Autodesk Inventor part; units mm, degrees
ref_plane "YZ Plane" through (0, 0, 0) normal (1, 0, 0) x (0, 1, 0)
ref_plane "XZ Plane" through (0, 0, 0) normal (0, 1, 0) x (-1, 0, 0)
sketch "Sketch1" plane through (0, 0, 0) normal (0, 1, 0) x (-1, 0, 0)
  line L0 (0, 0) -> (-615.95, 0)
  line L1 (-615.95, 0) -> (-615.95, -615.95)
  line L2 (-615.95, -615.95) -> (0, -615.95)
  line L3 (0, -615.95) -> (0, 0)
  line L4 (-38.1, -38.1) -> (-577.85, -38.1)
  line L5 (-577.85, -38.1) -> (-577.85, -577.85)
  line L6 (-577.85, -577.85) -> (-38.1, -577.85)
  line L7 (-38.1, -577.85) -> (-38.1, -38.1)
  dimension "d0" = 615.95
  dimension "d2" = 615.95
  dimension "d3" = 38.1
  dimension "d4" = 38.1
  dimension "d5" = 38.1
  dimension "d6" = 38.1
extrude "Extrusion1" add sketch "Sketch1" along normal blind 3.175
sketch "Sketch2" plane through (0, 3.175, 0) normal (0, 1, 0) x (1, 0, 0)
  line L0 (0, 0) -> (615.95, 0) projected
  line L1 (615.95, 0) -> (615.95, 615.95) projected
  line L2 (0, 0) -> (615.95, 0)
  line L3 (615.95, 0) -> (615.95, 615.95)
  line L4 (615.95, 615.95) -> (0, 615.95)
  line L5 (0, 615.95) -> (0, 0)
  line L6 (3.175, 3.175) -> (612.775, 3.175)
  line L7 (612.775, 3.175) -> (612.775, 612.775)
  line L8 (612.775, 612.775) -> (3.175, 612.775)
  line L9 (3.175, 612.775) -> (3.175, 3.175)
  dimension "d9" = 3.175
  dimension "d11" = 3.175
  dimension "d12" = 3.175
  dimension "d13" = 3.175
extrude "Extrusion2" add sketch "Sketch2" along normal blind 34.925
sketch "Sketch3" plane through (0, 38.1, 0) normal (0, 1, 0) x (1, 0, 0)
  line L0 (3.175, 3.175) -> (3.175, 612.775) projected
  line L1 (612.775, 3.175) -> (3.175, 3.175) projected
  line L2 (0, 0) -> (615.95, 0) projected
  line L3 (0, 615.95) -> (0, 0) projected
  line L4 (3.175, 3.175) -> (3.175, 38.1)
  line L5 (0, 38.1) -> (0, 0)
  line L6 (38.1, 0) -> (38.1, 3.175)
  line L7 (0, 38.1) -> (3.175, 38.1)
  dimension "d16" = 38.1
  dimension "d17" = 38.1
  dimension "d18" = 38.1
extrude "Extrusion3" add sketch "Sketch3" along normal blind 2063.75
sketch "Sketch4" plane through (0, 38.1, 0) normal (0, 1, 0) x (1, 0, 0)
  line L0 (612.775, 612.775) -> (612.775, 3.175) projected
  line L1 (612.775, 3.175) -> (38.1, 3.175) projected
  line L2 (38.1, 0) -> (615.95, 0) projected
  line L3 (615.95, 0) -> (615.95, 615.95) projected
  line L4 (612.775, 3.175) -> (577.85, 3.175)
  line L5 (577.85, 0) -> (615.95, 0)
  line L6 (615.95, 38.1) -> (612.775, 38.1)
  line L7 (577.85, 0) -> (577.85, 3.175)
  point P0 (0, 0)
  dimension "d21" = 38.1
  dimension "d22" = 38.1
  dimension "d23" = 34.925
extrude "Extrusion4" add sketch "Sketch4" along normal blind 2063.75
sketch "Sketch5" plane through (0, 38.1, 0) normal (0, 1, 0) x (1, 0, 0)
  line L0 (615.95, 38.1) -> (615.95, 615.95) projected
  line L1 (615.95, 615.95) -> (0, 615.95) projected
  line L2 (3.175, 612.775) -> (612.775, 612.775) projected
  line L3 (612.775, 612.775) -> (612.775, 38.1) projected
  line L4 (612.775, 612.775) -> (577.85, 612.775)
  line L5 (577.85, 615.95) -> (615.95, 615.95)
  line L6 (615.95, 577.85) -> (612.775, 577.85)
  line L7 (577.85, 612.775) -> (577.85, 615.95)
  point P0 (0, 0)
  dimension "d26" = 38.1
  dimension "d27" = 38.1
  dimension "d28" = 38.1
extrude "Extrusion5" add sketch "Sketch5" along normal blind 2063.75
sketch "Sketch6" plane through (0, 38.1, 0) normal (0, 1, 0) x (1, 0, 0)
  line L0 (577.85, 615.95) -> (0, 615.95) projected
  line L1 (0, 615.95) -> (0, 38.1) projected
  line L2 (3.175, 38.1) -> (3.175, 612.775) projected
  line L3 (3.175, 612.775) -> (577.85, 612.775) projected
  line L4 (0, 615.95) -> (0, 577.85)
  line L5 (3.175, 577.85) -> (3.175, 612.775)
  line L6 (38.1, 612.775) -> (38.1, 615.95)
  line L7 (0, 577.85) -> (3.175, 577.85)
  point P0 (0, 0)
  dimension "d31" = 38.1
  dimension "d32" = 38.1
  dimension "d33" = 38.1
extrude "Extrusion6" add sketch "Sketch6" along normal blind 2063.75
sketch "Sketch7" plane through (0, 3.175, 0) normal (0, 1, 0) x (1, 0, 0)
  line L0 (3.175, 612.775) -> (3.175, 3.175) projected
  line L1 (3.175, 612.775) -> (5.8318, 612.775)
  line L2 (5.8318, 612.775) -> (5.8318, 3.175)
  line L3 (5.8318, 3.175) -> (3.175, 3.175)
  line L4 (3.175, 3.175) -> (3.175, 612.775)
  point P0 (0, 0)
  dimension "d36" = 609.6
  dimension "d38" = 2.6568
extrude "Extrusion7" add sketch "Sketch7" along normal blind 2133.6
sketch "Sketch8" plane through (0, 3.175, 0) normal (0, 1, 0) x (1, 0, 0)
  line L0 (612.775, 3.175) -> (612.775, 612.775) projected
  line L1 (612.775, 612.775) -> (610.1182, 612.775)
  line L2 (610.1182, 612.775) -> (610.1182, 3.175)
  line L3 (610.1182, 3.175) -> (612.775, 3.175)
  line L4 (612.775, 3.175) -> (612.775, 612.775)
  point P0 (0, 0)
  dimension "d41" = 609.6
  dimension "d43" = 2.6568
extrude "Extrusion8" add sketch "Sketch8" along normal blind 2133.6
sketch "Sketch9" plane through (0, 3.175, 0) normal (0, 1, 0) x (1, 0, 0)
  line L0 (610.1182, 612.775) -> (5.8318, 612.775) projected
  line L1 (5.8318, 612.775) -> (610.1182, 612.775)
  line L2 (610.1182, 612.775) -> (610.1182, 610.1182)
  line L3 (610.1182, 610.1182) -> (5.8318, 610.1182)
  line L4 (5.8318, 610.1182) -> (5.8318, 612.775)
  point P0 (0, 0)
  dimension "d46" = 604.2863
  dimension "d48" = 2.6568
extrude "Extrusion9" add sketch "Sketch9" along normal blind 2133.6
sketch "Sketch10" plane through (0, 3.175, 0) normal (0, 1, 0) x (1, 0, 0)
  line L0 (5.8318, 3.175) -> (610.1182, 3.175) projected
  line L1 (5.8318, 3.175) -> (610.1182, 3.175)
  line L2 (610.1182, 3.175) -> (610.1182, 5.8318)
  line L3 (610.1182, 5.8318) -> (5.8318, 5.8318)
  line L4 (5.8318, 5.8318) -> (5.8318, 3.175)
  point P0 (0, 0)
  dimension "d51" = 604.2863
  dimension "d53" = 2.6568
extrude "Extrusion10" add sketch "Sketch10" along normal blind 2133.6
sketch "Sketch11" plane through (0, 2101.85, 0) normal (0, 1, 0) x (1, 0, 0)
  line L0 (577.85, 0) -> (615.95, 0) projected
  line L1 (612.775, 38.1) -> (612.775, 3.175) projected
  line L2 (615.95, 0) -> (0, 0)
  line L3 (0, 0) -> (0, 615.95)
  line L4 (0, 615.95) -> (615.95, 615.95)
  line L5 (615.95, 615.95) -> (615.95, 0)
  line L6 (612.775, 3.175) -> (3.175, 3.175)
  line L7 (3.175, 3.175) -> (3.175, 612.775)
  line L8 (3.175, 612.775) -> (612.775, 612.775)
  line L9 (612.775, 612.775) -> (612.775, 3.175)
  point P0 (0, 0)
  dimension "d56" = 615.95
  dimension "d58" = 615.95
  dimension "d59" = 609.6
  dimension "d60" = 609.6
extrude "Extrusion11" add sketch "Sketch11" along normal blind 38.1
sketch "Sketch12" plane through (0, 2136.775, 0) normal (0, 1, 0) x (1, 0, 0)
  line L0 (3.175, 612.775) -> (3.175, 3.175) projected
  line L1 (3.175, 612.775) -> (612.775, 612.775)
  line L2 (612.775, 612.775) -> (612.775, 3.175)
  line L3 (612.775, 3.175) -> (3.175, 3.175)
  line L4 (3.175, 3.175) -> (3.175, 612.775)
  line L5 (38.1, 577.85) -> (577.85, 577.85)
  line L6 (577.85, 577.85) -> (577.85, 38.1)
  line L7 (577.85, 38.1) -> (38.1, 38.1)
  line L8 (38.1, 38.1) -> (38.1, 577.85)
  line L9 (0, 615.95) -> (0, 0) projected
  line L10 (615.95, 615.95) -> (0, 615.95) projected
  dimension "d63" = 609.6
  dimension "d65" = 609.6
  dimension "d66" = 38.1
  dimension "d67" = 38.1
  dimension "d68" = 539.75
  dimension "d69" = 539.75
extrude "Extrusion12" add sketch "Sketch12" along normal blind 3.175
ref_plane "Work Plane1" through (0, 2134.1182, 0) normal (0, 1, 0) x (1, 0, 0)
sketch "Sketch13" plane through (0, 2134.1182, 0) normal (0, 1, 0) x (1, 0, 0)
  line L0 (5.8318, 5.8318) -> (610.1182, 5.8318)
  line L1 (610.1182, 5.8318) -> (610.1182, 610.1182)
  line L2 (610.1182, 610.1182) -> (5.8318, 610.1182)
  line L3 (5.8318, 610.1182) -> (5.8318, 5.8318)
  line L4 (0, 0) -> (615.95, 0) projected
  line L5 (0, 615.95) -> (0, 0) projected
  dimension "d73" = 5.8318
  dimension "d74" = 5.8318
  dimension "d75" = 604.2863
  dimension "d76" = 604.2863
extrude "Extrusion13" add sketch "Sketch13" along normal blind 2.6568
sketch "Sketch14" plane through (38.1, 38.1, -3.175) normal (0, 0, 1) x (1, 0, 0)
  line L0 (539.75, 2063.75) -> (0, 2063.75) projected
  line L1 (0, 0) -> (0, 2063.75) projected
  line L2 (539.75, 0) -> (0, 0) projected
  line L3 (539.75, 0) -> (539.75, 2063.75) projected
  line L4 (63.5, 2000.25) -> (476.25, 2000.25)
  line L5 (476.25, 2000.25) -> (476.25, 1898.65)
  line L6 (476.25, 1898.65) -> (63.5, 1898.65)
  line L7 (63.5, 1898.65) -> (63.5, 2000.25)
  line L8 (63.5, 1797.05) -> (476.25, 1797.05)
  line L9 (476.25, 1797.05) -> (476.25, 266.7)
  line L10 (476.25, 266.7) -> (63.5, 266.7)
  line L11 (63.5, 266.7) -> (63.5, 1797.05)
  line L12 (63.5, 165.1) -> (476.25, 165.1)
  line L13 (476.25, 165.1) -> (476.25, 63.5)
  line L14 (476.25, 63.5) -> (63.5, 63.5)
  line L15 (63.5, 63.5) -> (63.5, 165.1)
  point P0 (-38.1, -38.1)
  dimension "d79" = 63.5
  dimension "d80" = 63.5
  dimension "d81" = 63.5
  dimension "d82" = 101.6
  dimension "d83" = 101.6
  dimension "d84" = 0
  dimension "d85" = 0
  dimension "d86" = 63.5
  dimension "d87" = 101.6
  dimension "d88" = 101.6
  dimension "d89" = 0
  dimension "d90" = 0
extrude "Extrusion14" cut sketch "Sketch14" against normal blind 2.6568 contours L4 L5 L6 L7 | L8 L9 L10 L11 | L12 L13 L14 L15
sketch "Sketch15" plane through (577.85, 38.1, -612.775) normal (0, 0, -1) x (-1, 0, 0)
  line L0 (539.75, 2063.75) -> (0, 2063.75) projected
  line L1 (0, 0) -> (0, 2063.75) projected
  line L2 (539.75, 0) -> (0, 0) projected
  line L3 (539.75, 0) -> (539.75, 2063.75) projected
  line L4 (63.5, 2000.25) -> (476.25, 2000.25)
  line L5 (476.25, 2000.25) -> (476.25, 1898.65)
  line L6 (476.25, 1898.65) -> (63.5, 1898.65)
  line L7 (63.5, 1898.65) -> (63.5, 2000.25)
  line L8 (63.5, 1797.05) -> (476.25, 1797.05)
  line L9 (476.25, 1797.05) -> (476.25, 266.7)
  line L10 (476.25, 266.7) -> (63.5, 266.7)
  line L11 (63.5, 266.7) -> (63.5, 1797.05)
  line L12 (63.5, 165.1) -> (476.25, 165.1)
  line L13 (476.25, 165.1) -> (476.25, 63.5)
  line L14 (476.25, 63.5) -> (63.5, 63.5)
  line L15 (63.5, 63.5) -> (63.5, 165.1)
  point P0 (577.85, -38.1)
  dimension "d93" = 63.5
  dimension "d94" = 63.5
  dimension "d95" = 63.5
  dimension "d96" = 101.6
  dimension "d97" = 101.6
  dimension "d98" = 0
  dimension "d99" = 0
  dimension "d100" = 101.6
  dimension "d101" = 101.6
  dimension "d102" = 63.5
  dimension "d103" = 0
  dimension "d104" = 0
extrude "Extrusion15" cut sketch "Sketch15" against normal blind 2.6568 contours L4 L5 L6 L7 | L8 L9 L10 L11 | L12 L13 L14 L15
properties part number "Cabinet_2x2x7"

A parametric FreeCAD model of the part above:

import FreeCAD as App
import Part
import Sketcher

V = App.Vector
Q = App.Units.Quantity


def add_polygon(sketch, points):
    """Adds a closed chain of lines whose ends are joined by coincident constraints."""
    first, n = sketch.GeometryCount, len(points)
    for a, b in zip(points, points[1:] + points[:1]):
        sketch.addGeometry(Part.LineSegment(App.Vector(*a, 0), App.Vector(*b, 0)), False)
    for i in range(n):
        sketch.addConstraint(Sketcher.Constraint("Coincident", first + i, 2, first + (i + 1) % n, 1))

doc = App.newDocument("Part")
body = doc.addObject("PartDesign::Body", "Body")

sketch1 = body.newObject("Sketcher::SketchObject", "Sketch")
sketch1.AttachmentSupport = (doc.getObject("XZ_Plane"), [""])
sketch1.MapMode = "FlatFace"
add_polygon(sketch1, [(0, -616), (0, 0), (616, 0), (616, -616)])
add_polygon(sketch1, [(578, -38), (38, -38), (38, -578), (578, -578)])
sketch1.addConstraint(Sketcher.Constraint("Vertical", 0))
sketch1.addConstraint(Sketcher.Constraint("Horizontal", 1))
sketch1.addConstraint(Sketcher.Constraint("Vertical", 2))
sketch1.addConstraint(Sketcher.Constraint("Horizontal", 3))
sketch1.addConstraint(Sketcher.Constraint("Horizontal", 4))
sketch1.addConstraint(Sketcher.Constraint("Vertical", 5))
sketch1.addConstraint(Sketcher.Constraint("Horizontal", 6))
sketch1.addConstraint(Sketcher.Constraint("Vertical", 7))
sketch1.addConstraint(Sketcher.Constraint("Coincident", 0, 2, -1, 1))
sketch1.addConstraint(Sketcher.Constraint("Equal", 3, 0))
sketch1.addConstraint(Sketcher.Constraint("Equal", 6, 5))
sketch1.addConstraint(Sketcher.Constraint("DistanceX", 1, 1, 1, 2, Q("24.25 in")))
sketch1.addConstraint(Sketcher.Constraint("DistanceX", -1, 1, 4, 2, Q("1.5 in")))
sketch1.addConstraint(Sketcher.Constraint("DistanceY", 4, 2, -1, 1, Q("1.5 in")))
sketch1.addConstraint(Sketcher.Constraint("DistanceY", 3, 2, 5, 2, Q("1.5 in")))
pad1 = body.newObject("PartDesign::Pad", "Pad")
pad1.Profile = sketch1
pad1.Length = Q("0.125 in")
pad1.Reversed = True

sketch2 = body.newObject("Sketcher::SketchObject", "Sketch001")
sketch2.AttachmentSupport = (doc.getObject("XZ_Plane"), [""])
sketch2.MapMode = "FlatFace"
sketch2.AttachmentOffset = App.Placement(V(0, 0, -0.125 * 25.4), App.Rotation())
add_polygon(sketch2, [(0, -616), (0, 0), (616, 0), (616, -616)])
add_polygon(sketch2, [(613, -3), (3, -3), (3, -613), (613, -613)])
sketch2.addConstraint(Sketcher.Constraint("Vertical", 0))
sketch2.addConstraint(Sketcher.Constraint("Horizontal", 1))
sketch2.addConstraint(Sketcher.Constraint("Vertical", 2))
sketch2.addConstraint(Sketcher.Constraint("Horizontal", 3))
sketch2.addConstraint(Sketcher.Constraint("Horizontal", 4))
sketch2.addConstraint(Sketcher.Constraint("Vertical", 5))
sketch2.addConstraint(Sketcher.Constraint("Horizontal", 6))
sketch2.addConstraint(Sketcher.Constraint("Vertical", 7))
sketch2.addConstraint(Sketcher.Constraint("Coincident", 0, 2, -1, 1))
sketch2.addConstraint(Sketcher.Constraint("Equal", 3, 0))
sketch2.addConstraint(Sketcher.Constraint("Equal", 6, 5))
sketch2.addConstraint(Sketcher.Constraint("DistanceX", 4, 2, 4, 1, Q("24 in")))
sketch2.addConstraint(Sketcher.Constraint("DistanceX", -1, 1, 4, 2, Q("0.125 in")))
sketch2.addConstraint(Sketcher.Constraint("DistanceY", 4, 2, -1, 1, Q("0.125 in")))
sketch2.addConstraint(Sketcher.Constraint("DistanceY", 3, 2, 5, 2, Q("0.125 in")))
pad2 = body.newObject("PartDesign::Pad", "Pad001")
pad2.Profile = sketch2
pad2.Length = Q("1.375 in")
pad2.Reversed = True

sketch3 = body.newObject("Sketcher::SketchObject", "Sketch002")
sketch3.AttachmentSupport = (doc.getObject("XZ_Plane"), [""])
sketch3.MapMode = "FlatFace"
sketch3.AttachmentOffset = App.Placement(V(0, 0, -1.5 * 25.4), App.Rotation())
add_polygon(sketch3, [(38.1, -3.2), (3.2, -3.2), (3.2, -38.1), (0, -38.1), (0, 0), (38.1, 0)])
sketch3.addConstraint(Sketcher.Constraint("Horizontal", 0))
sketch3.addConstraint(Sketcher.Constraint("Vertical", 1))
sketch3.addConstraint(Sketcher.Constraint("Horizontal", 2))
sketch3.addConstraint(Sketcher.Constraint("Vertical", 3))
sketch3.addConstraint(Sketcher.Constraint("Horizontal", 4))
sketch3.addConstraint(Sketcher.Constraint("Vertical", 5))
sketch3.addConstraint(Sketcher.Constraint("Coincident", 3, 2, -1, 1))
sketch3.addConstraint(Sketcher.Constraint("Equal", 0, 1))
sketch3.addConstraint(Sketcher.Constraint("Equal", 4, 3))
sketch3.addConstraint(Sketcher.Constraint("DistanceX", 4, 1, 4, 2, Q("1.5 in")))
sketch3.addConstraint(Sketcher.Constraint("DistanceX", 0, 2, 0, 1, Q("1.375 in")))
pad3 = body.newObject("PartDesign::Pad", "Pad002")
pad3.Profile = sketch3
pad3.Length = Q("81.25 in")
pad3.Reversed = True

sketch4 = body.newObject("Sketcher::SketchObject", "Sketch003")
sketch4.AttachmentSupport = (doc.getObject("XZ_Plane"), [""])
sketch4.MapMode = "FlatFace"
sketch4.AttachmentOffset = App.Placement(V(0, 0, -1.5 * 25.4), App.Rotation())
add_polygon(sketch4, [(616, -38.1), (612.8, -38.1), (612.8, -3.2), (577.9, -3.2), (577.9, 0), (616, 0)])
sketch4.addConstraint(Sketcher.Constraint("Horizontal", 0))
sketch4.addConstraint(Sketcher.Constraint("Vertical", 1))
sketch4.addConstraint(Sketcher.Constraint("Horizontal", 2))
sketch4.addConstraint(Sketcher.Constraint("Vertical", 3))
sketch4.addConstraint(Sketcher.Constraint("Horizontal", 4))
sketch4.addConstraint(Sketcher.Constraint("Vertical", 5))
sketch4.addConstraint(Sketcher.Constraint("PointOnObject", 3, 2, -1))
sketch4.addConstraint(Sketcher.Constraint("Equal", 2, 1))
sketch4.addConstraint(Sketcher.Constraint("Equal", 0, 3))
sketch4.addConstraint(Sketcher.Constraint("DistanceX", 4, 1, 4, 2, Q("1.5 in")))
sketch4.addConstraint(Sketcher.Constraint("DistanceX", 2, 2, 2, 1, Q("1.375 in")))
sketch4.addConstraint(Sketcher.Constraint("DistanceX", -1, 1, 2, 2, Q("22.75 in")))
pad4 = body.newObject("PartDesign::Pad", "Pad003")
pad4.Profile = sketch4
pad4.Length = Q("81.25 in")
pad4.Reversed = True

sketch5 = body.newObject("Sketcher::SketchObject", "Sketch004")
sketch5.AttachmentSupport = (doc.getObject("XZ_Plane"), [""])
sketch5.MapMode = "FlatFace"
sketch5.AttachmentOffset = App.Placement(V(0, 0, -1.5 * 25.4), App.Rotation())
add_polygon(sketch5, [(612.8, -577.9), (616, -577.9), (616, -616), (577.9, -616), (577.9, -612.8), (612.8, -612.8)])
sketch5.addConstraint(Sketcher.Constraint("Horizontal", 0))
sketch5.addConstraint(Sketcher.Constraint("Vertical", 1))
sketch5.addConstraint(Sketcher.Constraint("Horizontal", 2))
sketch5.addConstraint(Sketcher.Constraint("Vertical", 3))
sketch5.addConstraint(Sketcher.Constraint("Horizontal", 4))
sketch5.addConstraint(Sketcher.Constraint("Vertical", 5))
sketch5.addConstraint(Sketcher.Constraint("Equal", 2, 1))
sketch5.addConstraint(Sketcher.Constraint("Equal", 0, 3))
sketch5.addConstraint(Sketcher.Constraint("DistanceX", 2, 2, 2, 1, Q("1.5 in")))
sketch5.addConstraint(Sketcher.Constraint("DistanceX", 0, 1, 0, 2, Q("0.125 in")))
sketch5.addConstraint(Sketcher.Constraint("DistanceX", -1, 1, 0, 2, Q("24.25 in")))
sketch5.addConstraint(Sketcher.Constraint("DistanceY", 0, 2, -1, 1, Q("22.75 in")))
pad5 = body.newObject("PartDesign::Pad", "Pad004")
pad5.Profile = sketch5
pad5.Length = Q("81.25 in")
pad5.Reversed = True

sketch6 = body.newObject("Sketcher::SketchObject", "Sketch005")
sketch6.AttachmentSupport = (doc.getObject("XZ_Plane"), [""])
sketch6.MapMode = "FlatFace"
sketch6.AttachmentOffset = App.Placement(V(0, 0, -1.5 * 25.4), App.Rotation())
add_polygon(sketch6, [(38.1, -612.8), (38.1, -616), (0, -616), (0, -577.9), (3.2, -577.9), (3.2, -612.8)])
sketch6.addConstraint(Sketcher.Constraint("Vertical", 0))
sketch6.addConstraint(Sketcher.Constraint("Horizontal", 1))
sketch6.addConstraint(Sketcher.Constraint("Vertical", 2))
sketch6.addConstraint(Sketcher.Constraint("Horizontal", 3))
sketch6.addConstraint(Sketcher.Constraint("Vertical", 4))
sketch6.addConstraint(Sketcher.Constraint("Horizontal", 5))
sketch6.addConstraint(Sketcher.Constraint("PointOnObject", 1, 2, -2))
sketch6.addConstraint(Sketcher.Constraint("Equal", 3, 0))
sketch6.addConstraint(Sketcher.Constraint("Equal", 1, 2))
sketch6.addConstraint(Sketcher.Constraint("DistanceX", 1, 2, 1, 1, Q("1.5 in")))
sketch6.addConstraint(Sketcher.Constraint("DistanceX", 3, 1, 3, 2, Q("0.125 in")))
sketch6.addConstraint(Sketcher.Constraint("DistanceY", 0, 2, -1, 1, Q("24.25 in")))
pad6 = body.newObject("PartDesign::Pad", "Pad005")
pad6.Profile = sketch6
pad6.Length = Q("81.25 in")
pad6.Reversed = True

sketch7 = body.newObject("Sketcher::SketchObject", "Sketch006")
sketch7.AttachmentSupport = (doc.getObject("XZ_Plane"), [""])
sketch7.MapMode = "FlatFace"
sketch7.AttachmentOffset = App.Placement(V(0, 0, -0.125 * 25.4), App.Rotation())
add_polygon(sketch7, [(5.8, -612.8), (3.2, -612.8), (3.2, -3.2), (5.8, -3.2)])
sketch7.addConstraint(Sketcher.Constraint("Horizontal", 0))
sketch7.addConstraint(Sketcher.Constraint("Vertical", 1))
sketch7.addConstraint(Sketcher.Constraint("Horizontal", 2))
sketch7.addConstraint(Sketcher.Constraint("Vertical", 3))
sketch7.addConstraint(Sketcher.Constraint("DistanceY", 1, 1, 1, 2, Q("24 in")))
sketch7.addConstraint(Sketcher.Constraint("DistanceX", 0, 2, 0, 1, Q("0.1046 in")))
sketch7.addConstraint(Sketcher.Constraint("DistanceX", -1, 1, 0, 2, Q("0.125 in")))
sketch7.addConstraint(Sketcher.Constraint("DistanceY", 0, 2, -1, 1, Q("24.125 in")))
pad7 = body.newObject("PartDesign::Pad", "Pad006")
pad7.Profile = sketch7
pad7.Length = Q("84 in")
pad7.Reversed = True

sketch8 = body.newObject("Sketcher::SketchObject", "Sketch007")
sketch8.AttachmentSupport = (doc.getObject("XZ_Plane"), [""])
sketch8.MapMode = "FlatFace"
sketch8.AttachmentOffset = App.Placement(V(0, 0, -0.125 * 25.4), App.Rotation())
add_polygon(sketch8, [(610.1, -3.2), (612.8, -3.2), (612.8, -612.8), (610.1, -612.8)])
sketch8.addConstraint(Sketcher.Constraint("Horizontal", 0))
sketch8.addConstraint(Sketcher.Constraint("Vertical", 1))
sketch8.addConstraint(Sketcher.Constraint("Horizontal", 2))
sketch8.addConstraint(Sketcher.Constraint("Vertical", 3))
sketch8.addConstraint(Sketcher.Constraint("DistanceY", 1, 2, 1, 1, Q("24 in")))
sketch8.addConstraint(Sketcher.Constraint("DistanceX", 0, 1, 0, 2, Q("0.1046 in")))
sketch8.addConstraint(Sketcher.Constraint("DistanceX", -1, 1, 0, 2, Q("24.125 in")))
sketch8.addConstraint(Sketcher.Constraint("DistanceY", 0, 2, -1, 1, Q("0.125 in")))
pad8 = body.newObject("PartDesign::Pad", "Pad007")
pad8.Profile = sketch8
pad8.Length = Q("84 in")
pad8.Reversed = True

sketch9 = body.newObject("Sketcher::SketchObject", "Sketch008")
sketch9.AttachmentSupport = (doc.getObject("XZ_Plane"), [""])
sketch9.MapMode = "FlatFace"
sketch9.AttachmentOffset = App.Placement(V(0, 0, -0.125 * 25.4), App.Rotation())
add_polygon(sketch9, [(610.1, -610.1), (610.1, -612.8), (5.8, -612.8), (5.8, -610.1)])
sketch9.addConstraint(Sketcher.Constraint("Vertical", 0))
sketch9.addConstraint(Sketcher.Constraint("Horizontal", 1))
sketch9.addConstraint(Sketcher.Constraint("Vertical", 2))
sketch9.addConstraint(Sketcher.Constraint("Horizontal", 3))
sketch9.addConstraint(Sketcher.Constraint("DistanceX", 1, 2, 1, 1, Q("23.7908 in")))
sketch9.addConstraint(Sketcher.Constraint("DistanceY", 0, 2, 0, 1, Q("0.1046 in")))
sketch9.addConstraint(Sketcher.Constraint("DistanceY", 0, 2, -1, 1, Q("24.125 in")))
sketch9.addConstraint(Sketcher.Constraint("DistanceX", -1, 1, 0, 2, Q("24.0204 in")))
pad9 = body.newObject("PartDesign::Pad", "Pad008")
pad9.Profile = sketch9
pad9.Length = Q("84 in")
pad9.Reversed = True

sketch10 = body.newObject("Sketcher::SketchObject", "Sketch009")
sketch10.AttachmentSupport = (doc.getObject("XZ_Plane"), [""])
sketch10.MapMode = "FlatFace"
sketch10.AttachmentOffset = App.Placement(V(0, 0, -0.125 * 25.4), App.Rotation())
add_polygon(sketch10, [(5.8, -5.8), (5.8, -3.2), (610.1, -3.2), (610.1, -5.8)])
sketch10.addConstraint(Sketcher.Constraint("Vertical", 0))
sketch10.addConstraint(Sketcher.Constraint("Horizontal", 1))
sketch10.addConstraint(Sketcher.Constraint("Vertical", 2))
sketch10.addConstraint(Sketcher.Constraint("Horizontal", 3))
sketch10.addConstraint(Sketcher.Constraint("DistanceX", 1, 1, 1, 2, Q("23.7908 in")))
sketch10.addConstraint(Sketcher.Constraint("DistanceY", 0, 1, 0, 2, Q("0.1046 in")))
sketch10.addConstraint(Sketcher.Constraint("DistanceY", 0, 2, -1, 1, Q("0.125 in")))
sketch10.addConstraint(Sketcher.Constraint("DistanceX", -1, 1, 0, 2, Q("0.2296 in")))
pad10 = body.newObject("PartDesign::Pad", "Pad009")
pad10.Profile = sketch10
pad10.Length = Q("84 in")
pad10.Reversed = True

sketch11 = body.newObject("Sketcher::SketchObject", "Sketch010")
sketch11.AttachmentSupport = (doc.getObject("XZ_Plane"), [""])
sketch11.MapMode = "FlatFace"
sketch11.AttachmentOffset = App.Placement(V(0, 0, -82.75 * 25.4), App.Rotation())
add_polygon(sketch11, [(0, 0), (616, 0), (616, -616), (0, -616)])
add_polygon(sketch11, [(613, -613), (613, -3), (3, -3), (3, -613)])
sketch11.addConstraint(Sketcher.Constraint("Horizontal", 0))
sketch11.addConstraint(Sketcher.Constraint("Vertical", 1))
sketch11.addConstraint(Sketcher.Constraint("Horizontal", 2))
sketch11.addConstraint(Sketcher.Constraint("Vertical", 3))
sketch11.addConstraint(Sketcher.Constraint("Vertical", 4))
sketch11.addConstraint(Sketcher.Constraint("Horizontal", 5))
sketch11.addConstraint(Sketcher.Constraint("Vertical", 6))
sketch11.addConstraint(Sketcher.Constraint("Horizontal", 7))
sketch11.addConstraint(Sketcher.Constraint("Coincident", 3, 2, -1, 1))
sketch11.addConstraint(Sketcher.Constraint("Equal", 2, 1))
sketch11.addConstraint(Sketcher.Constraint("Equal", 7, 4))
sketch11.addConstraint(Sketcher.Constraint("DistanceX", 5, 2, 5, 1, Q("24 in")))
sketch11.addConstraint(Sketcher.Constraint("DistanceX", 0, 1, 0, 2, Q("24.25 in")))
sketch11.addConstraint(Sketcher.Constraint("DistanceX", -1, 1, 4, 2, Q("24.125 in")))
sketch11.addConstraint(Sketcher.Constraint("DistanceY", 4, 2, -1, 1, Q("0.125 in")))
pad11 = body.newObject("PartDesign::Pad", "Pad010")
pad11.Profile = sketch11
pad11.Length = Q("1.5 in")
pad11.Reversed = True

sketch12 = body.newObject("Sketcher::SketchObject", "Sketch011")
sketch12.AttachmentSupport = (doc.getObject("XZ_Plane"), [""])
sketch12.MapMode = "FlatFace"
sketch12.AttachmentOffset = App.Placement(V(0, 0, -84.125 * 25.4), App.Rotation())
add_polygon(sketch12, [(613, -613), (3, -613), (3, -3), (613, -3)])
add_polygon(sketch12, [(38, -38), (38, -578), (578, -578), (578, -38)])
sketch12.addConstraint(Sketcher.Constraint("Horizontal", 0))
sketch12.addConstraint(Sketcher.Constraint("Vertical", 1))
sketch12.addConstraint(Sketcher.Constraint("Horizontal", 2))
sketch12.addConstraint(Sketcher.Constraint("Vertical", 3))
sketch12.addConstraint(Sketcher.Constraint("Vertical", 4))
sketch12.addConstraint(Sketcher.Constraint("Horizontal", 5))
sketch12.addConstraint(Sketcher.Constraint("Vertical", 6))
sketch12.addConstraint(Sketcher.Constraint("Horizontal", 7))
sketch12.addConstraint(Sketcher.Constraint("Equal", 2, 1))
sketch12.addConstraint(Sketcher.Constraint("Equal", 7, 4))
sketch12.addConstraint(Sketcher.Constraint("DistanceX", 0, 2, 0, 1, Q("24 in")))
sketch12.addConstraint(Sketcher.Constraint("DistanceX", 5, 1, 5, 2, Q("21.25 in")))
sketch12.addConstraint(Sketcher.Constraint("DistanceX", -1, 1, 4, 2, Q("1.5 in")))
sketch12.addConstraint(Sketcher.Constraint("DistanceY", 6, 2, -1, 1, Q("1.5 in")))
sketch12.addConstraint(Sketcher.Constraint("DistanceX", -1, 1, 0, 2, Q("0.125 in")))
sketch12.addConstraint(Sketcher.Constraint("DistanceY", 0, 2, -1, 1, Q("24.125 in")))
pad12 = body.newObject("PartDesign::Pad", "Pad011")
pad12.Profile = sketch12
pad12.Length = Q("0.125 in")
pad12.Reversed = True

sketch13 = body.newObject("Sketcher::SketchObject", "Sketch012")
sketch13.AttachmentSupport = (doc.getObject("XZ_Plane"), [""])
sketch13.MapMode = "FlatFace"
sketch13.AttachmentOffset = App.Placement(V(0, 0, -84.0204016 * 25.4), App.Rotation())
add_polygon(sketch13, [(6, -610), (6, -6), (610, -6), (610, -610)])
sketch13.addConstraint(Sketcher.Constraint("Vertical", 0))
sketch13.addConstraint(Sketcher.Constraint("Horizontal", 1))
sketch13.addConstraint(Sketcher.Constraint("Vertical", 2))
sketch13.addConstraint(Sketcher.Constraint("Horizontal", 3))
sketch13.addConstraint(Sketcher.Constraint("Equal", 3, 0))
sketch13.addConstraint(Sketcher.Constraint("DistanceX", 1, 1, 1, 2, Q("23.7908 in")))
sketch13.addConstraint(Sketcher.Constraint("DistanceX", -1, 1, 0, 2, Q("0.2296 in")))
sketch13.addConstraint(Sketcher.Constraint("DistanceY", 0, 2, -1, 1, Q("0.2296 in")))
pad13 = body.newObject("PartDesign::Pad", "Pad012")
pad13.Profile = sketch13
pad13.Length = Q("0.1045984 in")
pad13.Reversed = True

sketch14 = body.newObject("Sketcher::SketchObject", "Sketch013")
sketch14.AttachmentSupport = (doc.getObject("XY_Plane"), [""])
sketch14.MapMode = "FlatFace"
sketch14.AttachmentOffset = App.Placement(V(0, 0, -0.125 * 25.4), App.Rotation())
add_polygon(sketch14, [(514, 2038), (102, 2038), (102, 1937), (514, 1937)])
add_polygon(sketch14, [(514, 1835), (102, 1835), (102, 305), (514, 305)])
add_polygon(sketch14, [(514, 203), (102, 203), (102, 102), (514, 102)])
sketch14.addConstraint(Sketcher.Constraint("Horizontal", 0))
sketch14.addConstraint(Sketcher.Constraint("Vertical", 1))
sketch14.addConstraint(Sketcher.Constraint("Horizontal", 2))
sketch14.addConstraint(Sketcher.Constraint("Vertical", 3))
sketch14.addConstraint(Sketcher.Constraint("Horizontal", 4))
sketch14.addConstraint(Sketcher.Constraint("Vertical", 5))
sketch14.addConstraint(Sketcher.Constraint("Horizontal", 6))
sketch14.addConstraint(Sketcher.Constraint("Vertical", 7))
sketch14.addConstraint(Sketcher.Constraint("Horizontal", 8))
sketch14.addConstraint(Sketcher.Constraint("Vertical", 9))
sketch14.addConstraint(Sketcher.Constraint("Horizontal", 10))
sketch14.addConstraint(Sketcher.Constraint("Vertical", 11))
sketch14.addConstraint(Sketcher.Constraint("Vertical", 1, 2, 4, 2))
sketch14.addConstraint(Sketcher.Constraint("Vertical", 3, 2, 6, 2))
sketch14.addConstraint(Sketcher.Constraint("Vertical", 5, 2, 8, 2))
sketch14.addConstraint(Sketcher.Constraint("Vertical", 7, 2, 10, 2))
sketch14.addConstraint(Sketcher.Constraint("Equal", 3, 9))
sketch14.addConstraint(Sketcher.Constraint("DistanceY", 1, 2, 1, 1, Q("4 in")))
sketch14.addConstraint(Sketcher.Constraint("DistanceX", -1, 1, 0, 2, Q("4 in")))
sketch14.addConstraint(Sketcher.Constraint("DistanceY", -1, 1, 9, 2, Q("4 in")))
sketch14.addConstraint(Sketcher.Constraint("DistanceY", 4, 2, 1, 2, Q("4 in")))
sketch14.addConstraint(Sketcher.Constraint("DistanceY", 8, 2, 5, 2, Q("4 in")))
sketch14.addConstraint(Sketcher.Constraint("DistanceX", 0, 2, 0, 1, Q("16.25 in")))
sketch14.addConstraint(Sketcher.Constraint("DistanceY", 5, 2, 5, 1, Q("60.25 in")))
pocket1 = body.newObject("PartDesign::Pocket", "Pocket")
pocket1.Profile = sketch14
pocket1.Length = Q("0.1045984 in")

sketch15 = body.newObject("Sketcher::SketchObject", "Sketch014")
sketch15.AttachmentSupport = (doc.getObject("XY_Plane"), [""])
sketch15.MapMode = "FlatFace"
sketch15.AttachmentOffset = App.Placement(V(0, 0, -24.125 * 25.4), App.Rotation())
add_polygon(sketch15, [(102, 2038), (514, 2038), (514, 1937), (102, 1937)])
add_polygon(sketch15, [(102, 1835), (514, 1835), (514, 305), (102, 305)])
add_polygon(sketch15, [(102, 203), (514, 203), (514, 102), (102, 102)])
sketch15.addConstraint(Sketcher.Constraint("Horizontal", 0))
sketch15.addConstraint(Sketcher.Constraint("Vertical", 1))
sketch15.addConstraint(Sketcher.Constraint("Horizontal", 2))
sketch15.addConstraint(Sketcher.Constraint("Vertical", 3))
sketch15.addConstraint(Sketcher.Constraint("Horizontal", 4))
sketch15.addConstraint(Sketcher.Constraint("Vertical", 5))
sketch15.addConstraint(Sketcher.Constraint("Horizontal", 6))
sketch15.addConstraint(Sketcher.Constraint("Vertical", 7))
sketch15.addConstraint(Sketcher.Constraint("Horizontal", 8))
sketch15.addConstraint(Sketcher.Constraint("Vertical", 9))
sketch15.addConstraint(Sketcher.Constraint("Horizontal", 10))
sketch15.addConstraint(Sketcher.Constraint("Vertical", 11))
sketch15.addConstraint(Sketcher.Constraint("Vertical", 1, 2, 4, 2))
sketch15.addConstraint(Sketcher.Constraint("Vertical", 3, 2, 6, 2))
sketch15.addConstraint(Sketcher.Constraint("Vertical", 5, 2, 8, 2))
sketch15.addConstraint(Sketcher.Constraint("Vertical", 7, 2, 10, 2))
sketch15.addConstraint(Sketcher.Constraint("Equal", 3, 9))
sketch15.addConstraint(Sketcher.Constraint("DistanceY", 1, 2, 1, 1, Q("4 in")))
sketch15.addConstraint(Sketcher.Constraint("DistanceX", -1, 1, 2, 2, Q("4 in")))
sketch15.addConstraint(Sketcher.Constraint("DistanceY", -1, 1, 9, 2, Q("4 in")))
sketch15.addConstraint(Sketcher.Constraint("DistanceY", 4, 2, 1, 2, Q("4 in")))
sketch15.addConstraint(Sketcher.Constraint("DistanceY", 8, 2, 5, 2, Q("4 in")))
sketch15.addConstraint(Sketcher.Constraint("DistanceX", 0, 1, 0, 2, Q("16.25 in")))
sketch15.addConstraint(Sketcher.Constraint("DistanceY", 5, 2, 5, 1, Q("60.25 in")))
pocket2 = body.newObject("PartDesign::Pocket", "Pocket001")
pocket2.Profile = sketch15
pocket2.Length = Q("0.1045984 in")
pocket2.Reversed = True

doc.recompute()
